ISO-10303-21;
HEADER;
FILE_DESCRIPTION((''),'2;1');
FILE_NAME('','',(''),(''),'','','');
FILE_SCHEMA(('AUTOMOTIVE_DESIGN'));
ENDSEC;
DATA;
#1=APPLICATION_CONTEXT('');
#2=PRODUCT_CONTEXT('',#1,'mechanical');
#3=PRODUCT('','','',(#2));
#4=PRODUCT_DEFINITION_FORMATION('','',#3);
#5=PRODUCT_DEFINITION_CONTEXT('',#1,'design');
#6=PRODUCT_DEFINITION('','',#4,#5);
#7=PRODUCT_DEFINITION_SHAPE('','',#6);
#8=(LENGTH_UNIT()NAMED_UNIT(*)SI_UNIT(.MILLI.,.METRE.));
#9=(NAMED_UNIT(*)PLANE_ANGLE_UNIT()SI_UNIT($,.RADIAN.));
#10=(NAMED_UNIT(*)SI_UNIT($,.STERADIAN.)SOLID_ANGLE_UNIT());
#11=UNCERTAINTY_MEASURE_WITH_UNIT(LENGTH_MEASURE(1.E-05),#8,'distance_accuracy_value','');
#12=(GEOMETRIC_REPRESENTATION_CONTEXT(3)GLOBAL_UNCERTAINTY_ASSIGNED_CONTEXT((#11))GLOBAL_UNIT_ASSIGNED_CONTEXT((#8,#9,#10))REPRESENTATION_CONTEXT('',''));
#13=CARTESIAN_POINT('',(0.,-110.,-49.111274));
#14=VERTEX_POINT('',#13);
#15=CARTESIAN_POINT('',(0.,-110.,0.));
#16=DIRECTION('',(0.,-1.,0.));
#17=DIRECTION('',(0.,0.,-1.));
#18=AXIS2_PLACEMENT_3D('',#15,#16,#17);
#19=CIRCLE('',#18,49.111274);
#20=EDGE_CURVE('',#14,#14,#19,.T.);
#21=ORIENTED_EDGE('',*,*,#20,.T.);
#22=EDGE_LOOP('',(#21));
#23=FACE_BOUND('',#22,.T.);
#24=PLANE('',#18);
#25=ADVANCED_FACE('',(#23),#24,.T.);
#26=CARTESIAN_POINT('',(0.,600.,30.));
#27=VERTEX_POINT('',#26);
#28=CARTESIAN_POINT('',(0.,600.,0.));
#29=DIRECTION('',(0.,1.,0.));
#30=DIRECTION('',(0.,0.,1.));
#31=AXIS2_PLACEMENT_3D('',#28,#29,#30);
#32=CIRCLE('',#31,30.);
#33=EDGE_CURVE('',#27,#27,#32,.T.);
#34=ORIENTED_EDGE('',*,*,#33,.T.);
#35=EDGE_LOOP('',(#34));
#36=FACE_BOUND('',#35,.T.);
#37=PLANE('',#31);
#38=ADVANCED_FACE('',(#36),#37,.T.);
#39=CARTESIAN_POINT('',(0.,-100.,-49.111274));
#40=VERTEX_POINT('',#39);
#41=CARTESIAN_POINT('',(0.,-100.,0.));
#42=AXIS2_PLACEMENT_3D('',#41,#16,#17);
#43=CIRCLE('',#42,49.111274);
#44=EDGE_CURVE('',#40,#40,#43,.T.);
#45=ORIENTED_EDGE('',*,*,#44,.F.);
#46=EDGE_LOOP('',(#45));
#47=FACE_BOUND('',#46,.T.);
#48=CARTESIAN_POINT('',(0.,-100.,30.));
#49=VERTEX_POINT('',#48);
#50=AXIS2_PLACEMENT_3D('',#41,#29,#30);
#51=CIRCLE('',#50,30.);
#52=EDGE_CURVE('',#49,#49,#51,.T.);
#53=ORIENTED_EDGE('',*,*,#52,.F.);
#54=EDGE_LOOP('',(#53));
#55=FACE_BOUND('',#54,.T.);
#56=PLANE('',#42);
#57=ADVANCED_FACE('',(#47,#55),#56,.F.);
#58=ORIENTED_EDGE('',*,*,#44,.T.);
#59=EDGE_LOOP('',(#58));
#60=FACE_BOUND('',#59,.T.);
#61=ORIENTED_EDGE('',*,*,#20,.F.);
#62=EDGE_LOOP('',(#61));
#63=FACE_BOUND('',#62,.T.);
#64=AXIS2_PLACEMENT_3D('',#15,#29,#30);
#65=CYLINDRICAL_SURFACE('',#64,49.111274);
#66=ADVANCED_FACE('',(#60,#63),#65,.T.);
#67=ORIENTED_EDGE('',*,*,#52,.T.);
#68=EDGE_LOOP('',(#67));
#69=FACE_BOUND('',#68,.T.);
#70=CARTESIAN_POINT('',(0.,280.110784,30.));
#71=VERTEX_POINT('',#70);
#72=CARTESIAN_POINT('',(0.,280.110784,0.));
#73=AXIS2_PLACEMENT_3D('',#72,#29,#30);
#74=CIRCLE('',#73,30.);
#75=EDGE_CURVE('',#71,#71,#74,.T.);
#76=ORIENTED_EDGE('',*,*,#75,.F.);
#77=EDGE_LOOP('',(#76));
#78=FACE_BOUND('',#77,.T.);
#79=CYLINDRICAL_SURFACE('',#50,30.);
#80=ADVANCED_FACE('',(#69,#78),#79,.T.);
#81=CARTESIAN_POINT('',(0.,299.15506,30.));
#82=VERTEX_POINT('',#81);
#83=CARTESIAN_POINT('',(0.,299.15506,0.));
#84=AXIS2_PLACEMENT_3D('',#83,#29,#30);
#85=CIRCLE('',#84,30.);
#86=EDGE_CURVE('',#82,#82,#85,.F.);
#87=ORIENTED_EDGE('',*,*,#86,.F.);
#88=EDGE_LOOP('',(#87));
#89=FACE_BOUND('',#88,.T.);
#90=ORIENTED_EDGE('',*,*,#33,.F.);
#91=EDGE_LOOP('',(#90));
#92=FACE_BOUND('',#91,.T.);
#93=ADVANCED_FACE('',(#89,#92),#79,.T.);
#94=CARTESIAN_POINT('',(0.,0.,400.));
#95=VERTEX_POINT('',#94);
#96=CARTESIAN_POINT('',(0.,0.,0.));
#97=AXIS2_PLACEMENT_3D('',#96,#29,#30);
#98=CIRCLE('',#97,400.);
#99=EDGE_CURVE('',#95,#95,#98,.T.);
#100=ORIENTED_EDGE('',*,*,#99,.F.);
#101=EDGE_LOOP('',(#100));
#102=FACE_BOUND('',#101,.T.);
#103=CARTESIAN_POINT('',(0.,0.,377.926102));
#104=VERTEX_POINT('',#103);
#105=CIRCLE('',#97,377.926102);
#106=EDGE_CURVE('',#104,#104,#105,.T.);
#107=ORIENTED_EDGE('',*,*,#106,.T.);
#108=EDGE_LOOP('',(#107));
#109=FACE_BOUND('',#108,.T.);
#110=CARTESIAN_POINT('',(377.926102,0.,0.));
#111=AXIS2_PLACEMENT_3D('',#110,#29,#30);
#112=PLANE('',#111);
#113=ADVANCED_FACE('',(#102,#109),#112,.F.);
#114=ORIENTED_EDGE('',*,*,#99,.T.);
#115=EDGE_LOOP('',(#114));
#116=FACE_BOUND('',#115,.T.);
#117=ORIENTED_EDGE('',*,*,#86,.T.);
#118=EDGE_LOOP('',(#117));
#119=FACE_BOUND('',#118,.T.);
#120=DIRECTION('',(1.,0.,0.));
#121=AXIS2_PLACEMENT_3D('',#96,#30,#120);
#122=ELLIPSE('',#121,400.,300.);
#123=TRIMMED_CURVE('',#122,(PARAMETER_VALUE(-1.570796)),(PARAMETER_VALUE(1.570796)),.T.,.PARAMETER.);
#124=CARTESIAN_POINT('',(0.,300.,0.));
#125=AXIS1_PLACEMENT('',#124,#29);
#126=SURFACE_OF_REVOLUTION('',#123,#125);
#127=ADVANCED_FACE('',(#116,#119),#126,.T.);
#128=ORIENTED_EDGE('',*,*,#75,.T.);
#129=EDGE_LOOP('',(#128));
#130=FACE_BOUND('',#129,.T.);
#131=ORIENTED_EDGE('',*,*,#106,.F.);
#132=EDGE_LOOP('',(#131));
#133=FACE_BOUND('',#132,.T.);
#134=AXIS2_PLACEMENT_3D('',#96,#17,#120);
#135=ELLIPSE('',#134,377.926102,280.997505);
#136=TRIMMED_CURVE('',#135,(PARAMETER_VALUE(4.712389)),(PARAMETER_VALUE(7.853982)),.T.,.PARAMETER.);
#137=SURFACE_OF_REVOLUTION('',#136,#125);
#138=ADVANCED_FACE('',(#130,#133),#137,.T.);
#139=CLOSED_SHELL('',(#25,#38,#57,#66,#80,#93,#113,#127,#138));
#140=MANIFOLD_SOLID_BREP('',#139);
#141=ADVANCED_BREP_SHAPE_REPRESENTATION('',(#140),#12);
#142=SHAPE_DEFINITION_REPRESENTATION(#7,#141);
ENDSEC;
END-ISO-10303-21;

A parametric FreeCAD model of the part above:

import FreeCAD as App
import Part
import Sketcher
Q = App.Units.Quantity

doc = App.newDocument("Part")
body = doc.addObject("PartDesign::Body", "Body")

# Sketch on XY plane
sketch1 = body.newObject("Sketcher::SketchObject", "Sketch")
sketch1.AttachmentSupport = (doc.getObject("XY_Plane"), [""])
sketch1.MapMode = "FlatFace"
sketch1.addGeometry([
    Part.LineSegment(App.Vector(0, 300, 0), App.Vector(0, 280.997505, 0)),
    Part.BSplineCurve([App.Vector(377.926102, 0, 0), App.Vector(377.926102, 280.997505, 0), App.Vector(0, 280.997505, 0)], [3, 3], [0, 1.570796327], False, 2, [1, 0.707106781, 1], False),
    Part.LineSegment(App.Vector(377.926102, 0, 0), App.Vector(400, 0, 0)),
    Part.BSplineCurve([App.Vector(400, 0, 0), App.Vector(400, 300, 0), App.Vector(0, 300, 0)], [3, 3], [0, 1.570796327], False, 2, [1, 0.707106781, 1], False),
], False)
sketch1.addConstraint([
    Sketcher.Constraint("Block", 1),
    Sketcher.Constraint("Block", 3),
    Sketcher.Constraint("Coincident", 0, 2, 1, 2),
    Sketcher.Constraint("Coincident", 1, 1, 2, 1),
    Sketcher.Constraint("Coincident", 2, 2, 3, 1),
    Sketcher.Constraint("Coincident", 3, 2, 0, 1),
])
revolution = body.newObject("PartDesign::Revolution", "Revolution")
revolution.Profile = sketch1
revolution.ReferenceAxis = (sketch1, ["V_Axis"])
revolution.Angle = 360

# Sketch on XZ plane
sketch2 = body.newObject("Sketcher::SketchObject", "Sketch001")
sketch2.AttachmentSupport = (doc.getObject("XZ_Plane"), [""])
sketch2.MapMode = "FlatFace"
sketch2.addGeometry(Part.Circle(App.Vector(0, 0, 0), App.Vector(0, 0, 1), 30), False)
sketch2.addConstraint([
    Sketcher.Constraint("Coincident", 0, 3, -1, 1),
    Sketcher.Constraint("Diameter", 0, Q("60 mm")),
])
pad1 = body.newObject("PartDesign::Pad", "Pad")
pad1.Profile = sketch2
pad1.Type = "TwoLengths"
pad1.Length = 600
pad1.Length2 = 100
pad1.Reversed = True

# Sketch on XZ plane
sketch3 = body.newObject("Sketcher::SketchObject", "Sketch002")
sketch3.AttachmentSupport = (doc.getObject("XZ_Plane"), [""])
sketch3.MapMode = "FlatFace"
sketch3.AttachmentOffset = App.Placement(App.Vector(0, 0, 100), App.Rotation())
sketch3.addGeometry(Part.Circle(App.Vector(0, 0, 0), App.Vector(0, 0, 1), 49), False)
sketch3.addConstraint([
    Sketcher.Constraint("Coincident", 0, 3, -1, 1),
    Sketcher.Constraint("Diameter", 0, Q("98.222549 mm")),
])
pad2 = body.newObject("PartDesign::Pad", "Pad001")
pad2.Profile = sketch3
pad2.Length = 10

doc.recompute()
